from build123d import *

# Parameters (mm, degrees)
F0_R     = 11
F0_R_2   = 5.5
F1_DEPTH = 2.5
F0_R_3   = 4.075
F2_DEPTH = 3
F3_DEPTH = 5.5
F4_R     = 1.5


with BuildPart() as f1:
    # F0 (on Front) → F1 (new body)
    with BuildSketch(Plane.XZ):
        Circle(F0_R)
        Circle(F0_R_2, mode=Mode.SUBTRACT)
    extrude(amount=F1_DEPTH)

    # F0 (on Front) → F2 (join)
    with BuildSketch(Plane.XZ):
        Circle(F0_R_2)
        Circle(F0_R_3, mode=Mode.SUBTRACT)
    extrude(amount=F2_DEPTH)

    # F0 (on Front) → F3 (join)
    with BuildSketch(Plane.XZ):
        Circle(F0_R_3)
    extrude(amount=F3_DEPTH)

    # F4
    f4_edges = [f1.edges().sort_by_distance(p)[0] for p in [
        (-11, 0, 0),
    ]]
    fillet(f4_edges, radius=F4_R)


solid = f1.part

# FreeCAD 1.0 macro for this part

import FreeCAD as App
import Part
import Sketcher
Q = App.Units.Quantity


def edges_at(feature, points):
    """Names of the edges that pass closest to the given points."""
    edges = feature.Shape.Edges
    near = lambda p: min(range(len(edges)), key=lambda i: edges[i].distToShape(Part.Vertex(*p))[0])
    return sorted({f"Edge{near(p) + 1}" for p in points})

doc = App.newDocument("Part")
body = doc.addObject("PartDesign::Body", "Body")

# Sketch on XZ plane
sketch1 = doc.addObject("Sketcher::SketchObject", "Sketch")
body.addObject(sketch1)
sketch1.AttachmentSupport = (doc.XZ_Plane, [""])
sketch1.MapMode = "FlatFace"
sketch1.addGeometry(Part.Circle(App.Vector(0, 0, 0), App.Vector(0, 0, 1), 11), False)
sketch1.addGeometry(Part.Circle(App.Vector(0, 0, 0), App.Vector(0, 0, 1), 6), False)
sketch1.addConstraint(Sketcher.Constraint("Coincident", 0, 3, -1, 1))
sketch1.addConstraint(Sketcher.Constraint("Coincident", 1, 3, -1, 1))
sketch1.addConstraint(Sketcher.Constraint("Diameter", 0, Q("22 mm")))
sketch1.addConstraint(Sketcher.Constraint("Diameter", 1, Q("11 mm")))
pad1 = doc.addObject("PartDesign::Pad", "Pad")
body.addObject(pad1)
pad1.Profile = sketch1
pad1.Length = 2.5

# Sketch on XZ plane
sketch2 = doc.addObject("Sketcher::SketchObject", "Sketch001")
body.addObject(sketch2)
sketch2.AttachmentSupport = (doc.XZ_Plane, [""])
sketch2.MapMode = "FlatFace"
sketch2.addGeometry(Part.Circle(App.Vector(0, 0, 0), App.Vector(0, 0, 1), 5.5), False)
sketch2.addGeometry(Part.Circle(App.Vector(0, 0, 0), App.Vector(0, 0, 1), 4.1), False)
sketch2.addConstraint(Sketcher.Constraint("Coincident", 0, 3, -1, 1))
sketch2.addConstraint(Sketcher.Constraint("Coincident", 1, 3, -1, 1))
sketch2.addConstraint(Sketcher.Constraint("Diameter", 0, Q("11 mm")))
sketch2.addConstraint(Sketcher.Constraint("Diameter", 1, Q("8.15 mm")))
pad2 = doc.addObject("PartDesign::Pad", "Pad001")
body.addObject(pad2)
pad2.Profile = sketch2
pad2.Length = 3

# Sketch on XZ plane
sketch3 = doc.addObject("Sketcher::SketchObject", "Sketch002")
body.addObject(sketch3)
sketch3.AttachmentSupport = (doc.XZ_Plane, [""])
sketch3.MapMode = "FlatFace"
sketch3.addGeometry(Part.Circle(App.Vector(0, 0, 0), App.Vector(0, 0, 1), 4.1), False)
sketch3.addConstraint(Sketcher.Constraint("Coincident", 0, 3, -1, 1))
sketch3.addConstraint(Sketcher.Constraint("Diameter", 0, Q("8.15 mm")))
pad3 = doc.addObject("PartDesign::Pad", "Pad002")
body.addObject(pad3)
pad3.Profile = sketch3
pad3.Length = 5.5
doc.recompute()

fillet = doc.addObject("PartDesign::Fillet", "Fillet")
body.addObject(fillet)
fillet.Base = (pad3, edges_at(pad3, [(-11, 0, 0)]))
fillet.Radius = 1.5

doc.recompute()
